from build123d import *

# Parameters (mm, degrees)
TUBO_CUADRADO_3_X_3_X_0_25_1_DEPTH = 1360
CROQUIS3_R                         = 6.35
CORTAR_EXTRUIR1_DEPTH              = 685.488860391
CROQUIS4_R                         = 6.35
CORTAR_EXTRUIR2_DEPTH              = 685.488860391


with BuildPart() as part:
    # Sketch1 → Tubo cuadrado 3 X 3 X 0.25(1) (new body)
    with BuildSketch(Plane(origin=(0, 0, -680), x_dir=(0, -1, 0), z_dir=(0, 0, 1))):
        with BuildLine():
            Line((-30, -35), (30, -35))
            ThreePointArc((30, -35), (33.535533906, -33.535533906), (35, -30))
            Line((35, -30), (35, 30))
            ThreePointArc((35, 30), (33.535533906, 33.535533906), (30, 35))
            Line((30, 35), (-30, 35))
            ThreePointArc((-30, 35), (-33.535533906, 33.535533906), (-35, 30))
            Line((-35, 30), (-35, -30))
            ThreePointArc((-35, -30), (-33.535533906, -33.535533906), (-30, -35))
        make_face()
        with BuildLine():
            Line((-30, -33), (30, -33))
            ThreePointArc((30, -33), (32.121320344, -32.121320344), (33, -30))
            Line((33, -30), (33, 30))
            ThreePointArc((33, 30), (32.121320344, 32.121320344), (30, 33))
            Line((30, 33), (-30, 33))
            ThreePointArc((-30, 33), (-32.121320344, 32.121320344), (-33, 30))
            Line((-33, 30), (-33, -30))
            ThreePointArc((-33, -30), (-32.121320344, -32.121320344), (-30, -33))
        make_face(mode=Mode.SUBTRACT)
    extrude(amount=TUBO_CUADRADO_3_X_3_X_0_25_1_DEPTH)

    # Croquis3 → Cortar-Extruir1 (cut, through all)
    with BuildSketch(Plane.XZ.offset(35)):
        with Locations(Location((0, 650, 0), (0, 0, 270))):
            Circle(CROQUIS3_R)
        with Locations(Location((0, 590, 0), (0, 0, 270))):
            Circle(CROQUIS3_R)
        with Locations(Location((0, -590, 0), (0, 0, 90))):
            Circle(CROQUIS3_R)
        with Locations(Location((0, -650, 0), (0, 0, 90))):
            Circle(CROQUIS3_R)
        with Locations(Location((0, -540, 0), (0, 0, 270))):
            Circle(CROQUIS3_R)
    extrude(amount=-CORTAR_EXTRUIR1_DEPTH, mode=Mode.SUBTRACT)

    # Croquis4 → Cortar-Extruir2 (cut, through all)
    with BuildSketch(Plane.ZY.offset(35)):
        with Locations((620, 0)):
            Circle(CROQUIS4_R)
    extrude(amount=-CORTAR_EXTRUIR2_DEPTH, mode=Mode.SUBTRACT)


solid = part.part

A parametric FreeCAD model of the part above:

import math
import FreeCAD as App
import Part
import Sketcher
from FreeCAD import Vector
Q = App.Units.Quantity

doc = App.newDocument("Part")
body = doc.addObject("PartDesign::Body", "Body")

sketch1 = doc.addObject("Sketcher::SketchObject", "Sketch")
body.addObject(sketch1)
sketch1.AttachmentSupport = (doc.XY_Plane, [""])
sketch1.MapMode = "FlatFace"
sketch1.AttachmentOffset = App.Placement(Vector(0, 0, -680), App.Rotation())
sketch1.addGeometry([
    Part.LineSegment(Vector(-35, 30, 0), Vector(-35, -30, 0)),
    Part.ArcOfCircle(Part.Circle(Vector(-30, -30, 0), Vector(0, 0, 1), 5), math.radians(180), math.radians(270)),
    Part.LineSegment(Vector(-30, -35, 0), Vector(30, -35, 0)),
    Part.ArcOfCircle(Part.Circle(Vector(30, -30, 0), Vector(0, 0, 1), 5), math.radians(-90), math.radians(0)),
    Part.LineSegment(Vector(35, -30, 0), Vector(35, 30, 0)),
    Part.ArcOfCircle(Part.Circle(Vector(30, 30, 0), Vector(0, 0, 1), 5), math.radians(0), math.radians(90)),
    Part.LineSegment(Vector(30, 35, 0), Vector(-30, 35, 0)),
    Part.ArcOfCircle(Part.Circle(Vector(-30, 30, 0), Vector(0, 0, 1), 5), math.radians(90), math.radians(180)),
    Part.LineSegment(Vector(-33, -30, 0), Vector(-33, 30, 0)),
    Part.ArcOfCircle(Part.Circle(Vector(-30, 30, 0), Vector(0, 0, 1), 3), math.radians(90), math.radians(180)),
    Part.LineSegment(Vector(-30, 33, 0), Vector(30, 33, 0)),
    Part.ArcOfCircle(Part.Circle(Vector(30, 30, 0), Vector(0, 0, 1), 3), math.radians(0), math.radians(90)),
    Part.LineSegment(Vector(33, 30, 0), Vector(33, -30, 0)),
    Part.ArcOfCircle(Part.Circle(Vector(30, -30, 0), Vector(0, 0, 1), 3), math.radians(-90), math.radians(0)),
    Part.LineSegment(Vector(30, -33, 0), Vector(-30, -33, 0)),
    Part.ArcOfCircle(Part.Circle(Vector(-30, -30, 0), Vector(0, 0, 1), 3), math.radians(180), math.radians(270)),
], False)
sketch1.addConstraint([
    Sketcher.Constraint("Tangent", 0, 2, 1, 1),
    Sketcher.Constraint("Tangent", 1, 2, 2, 1),
    Sketcher.Constraint("Tangent", 2, 2, 3, 1),
    Sketcher.Constraint("Tangent", 3, 2, 4, 1),
    Sketcher.Constraint("Tangent", 4, 2, 5, 1),
    Sketcher.Constraint("Tangent", 5, 2, 6, 1),
    Sketcher.Constraint("Tangent", 6, 2, 7, 1),
    Sketcher.Constraint("Tangent", 7, 2, 0, 1),
    Sketcher.Constraint("Tangent", 8, 2, 9, 2),
    Sketcher.Constraint("Tangent", 9, 1, 10, 1),
    Sketcher.Constraint("Tangent", 10, 2, 11, 2),
    Sketcher.Constraint("Tangent", 11, 1, 12, 1),
    Sketcher.Constraint("Tangent", 12, 2, 13, 2),
    Sketcher.Constraint("Tangent", 13, 1, 14, 1),
    Sketcher.Constraint("Tangent", 14, 2, 15, 2),
    Sketcher.Constraint("Tangent", 15, 1, 8, 1),
    Sketcher.Constraint("Vertical", 0),
    Sketcher.Constraint("Horizontal", 2),
    Sketcher.Constraint("Vertical", 4),
    Sketcher.Constraint("Horizontal", 6),
    Sketcher.Constraint("Vertical", 8),
    Sketcher.Constraint("Horizontal", 10),
    Sketcher.Constraint("Vertical", 12),
    Sketcher.Constraint("Horizontal", 14),
    Sketcher.Constraint("Coincident", 9, 3, 7, 3),
    Sketcher.Constraint("Coincident", 11, 3, 5, 3),
    Sketcher.Constraint("Coincident", 13, 3, 3, 3),
    Sketcher.Constraint("Equal", 1, 3),
    Sketcher.Constraint("Equal", 3, 5),
    Sketcher.Constraint("Equal", 5, 7),
    Sketcher.Constraint("Equal", 13, 15),
    Sketcher.Constraint("Symmetric", 1, 3, 5, 3, -1, 1),
    Sketcher.Constraint("Equal", 14, 0),
    Sketcher.Constraint("Radius", 1, Q("5 mm")),
    Sketcher.Constraint("Radius", 9, Q("3 mm")),
    Sketcher.Constraint("DistanceX", 2, 1, 2, 2, Q("60 mm")),
])
pad1 = doc.addObject("PartDesign::Pad", "Pad")
body.addObject(pad1)
pad1.Profile = sketch1
pad1.Length = 1360

sketch2 = doc.addObject("Sketcher::SketchObject", "Sketch001")
body.addObject(sketch2)
sketch2.AttachmentSupport = (doc.XZ_Plane, [""])
sketch2.MapMode = "FlatFace"
sketch2.AttachmentOffset = App.Placement(Vector(0, 0, 35), App.Rotation())
sketch2.addGeometry([
    Part.Circle(Vector(0, 650, 0), Vector(0, 0, 1), 6),
    Part.Circle(Vector(0, 590, 0), Vector(0, 0, 1), 6),
    Part.Circle(Vector(0, -590, 0), Vector(0, 0, 1), 6),
    Part.Circle(Vector(0, -650, 0), Vector(0, 0, 1), 6),
    Part.Circle(Vector(0, -540, 0), Vector(0, 0, 1), 6),
], False)
sketch2.addConstraint([
    Sketcher.Constraint("Equal", 0, 1),
    Sketcher.Constraint("Equal", 1, 2),
    Sketcher.Constraint("Equal", 2, 3),
    Sketcher.Constraint("Equal", 3, 4),
    Sketcher.Constraint("Symmetric", 1, 3, 2, 3, -1, 1),
    Sketcher.Constraint("Symmetric", 0, 3, 3, 3, -1, 1),
    Sketcher.Constraint("PointOnObject", 0, 3, -2),
    Sketcher.Constraint("PointOnObject", 1, 3, -2),
    Sketcher.Constraint("PointOnObject", 4, 3, -2),
    Sketcher.Constraint("Diameter", 0, Q("12.7 mm")),
    Sketcher.Constraint("DistanceY", -1, 1, 0, 3, Q("650 mm")),
    Sketcher.Constraint("DistanceY", -1, 1, 1, 3, Q("590 mm")),
    Sketcher.Constraint("DistanceY", 4, 3, -1, 1, Q("540 mm")),
])
pocket1 = doc.addObject("PartDesign::Pocket", "Pocket")
body.addObject(pocket1)
pocket1.Profile = sketch2
pocket1.Type = "ThroughAll"

sketch3 = doc.addObject("Sketcher::SketchObject", "Sketch002")
body.addObject(sketch3)
sketch3.AttachmentSupport = (doc.YZ_Plane, [""])
sketch3.MapMode = "FlatFace"
sketch3.AttachmentOffset = App.Placement(Vector(0, 0, -35), App.Rotation())
sketch3.addGeometry(Part.Circle(Vector(0, 620, 0), Vector(0, 0, 1), 6), False)
sketch3.addConstraint([
    Sketcher.Constraint("PointOnObject", 0, 3, -2),
    Sketcher.Constraint("Diameter", 0, Q("12.7 mm")),
    Sketcher.Constraint("DistanceY", -1, 1, 0, 3, Q("620 mm")),
])
pocket2 = doc.addObject("PartDesign::Pocket", "Pocket001")
body.addObject(pocket2)
pocket2.Profile = sketch3
pocket2.Type = "ThroughAll"
pocket2.Reversed = True

doc.recompute()
